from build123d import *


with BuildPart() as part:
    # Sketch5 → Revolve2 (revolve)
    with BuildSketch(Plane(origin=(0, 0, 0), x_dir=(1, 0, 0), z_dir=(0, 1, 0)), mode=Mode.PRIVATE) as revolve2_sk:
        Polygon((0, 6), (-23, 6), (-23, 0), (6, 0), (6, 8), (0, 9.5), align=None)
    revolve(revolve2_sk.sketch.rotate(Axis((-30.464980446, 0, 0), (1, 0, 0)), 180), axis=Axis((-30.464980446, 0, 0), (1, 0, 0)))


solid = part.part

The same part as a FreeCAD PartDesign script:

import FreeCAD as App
import Part
import Sketcher


def add_polygon(sketch, points):
    """Adds a closed chain of lines whose ends are joined by coincident constraints."""
    first, n = sketch.GeometryCount, len(points)
    for a, b in zip(points, points[1:] + points[:1]):
        sketch.addGeometry(Part.LineSegment(App.Vector(*a, 0), App.Vector(*b, 0)), False)
    for i in range(n):
        sketch.addConstraint(Sketcher.Constraint("Coincident", first + i, 2, first + (i + 1) % n, 1))

doc = App.newDocument("Part")
body = doc.addObject("PartDesign::Body", "Body")

# Sketch on XZ plane
sketch1 = doc.addObject("Sketcher::SketchObject", "Sketch")
body.addObject(sketch1)
sketch1.AttachmentSupport = (doc.XZ_Plane, [""])
sketch1.MapMode = "FlatFace"
add_polygon(sketch1, [(0, -6), (-23, -6), (-23, 0), (6, 0), (6, -8), (0, -9.5)])  # lines 0-5
sketch1.addConstraint([
    Sketcher.Constraint("Horizontal", 0),
    Sketcher.Constraint("Vertical", 1),
    Sketcher.Constraint("Horizontal", 2),
    Sketcher.Constraint("Vertical", 3),
    Sketcher.Constraint("Vertical", 5),
    Sketcher.Constraint("PointOnObject", 1, 2, -1),
    Sketcher.Constraint("PointOnObject", 4, 2, -2),
    Sketcher.Constraint("DistanceX", 0, 2, 0, 1, 23.0),
    Sketcher.Constraint("DistanceX", 2, 1, 2, 2, 29.0),
    Sketcher.Constraint("DistanceY", 1, 1, 1, 2, 6.0),
    Sketcher.Constraint("DistanceY", 3, 2, 3, 1, 8.0),
    Sketcher.Constraint("DistanceY", 5, 1, 5, 2, 3.5),
])
revolution = doc.addObject("PartDesign::Revolution", "Revolution")
body.addObject(revolution)
revolution.Profile = sketch1
revolution.ReferenceAxis = (sketch1, ["H_Axis"])
revolution.Angle = 360

doc.recompute()
